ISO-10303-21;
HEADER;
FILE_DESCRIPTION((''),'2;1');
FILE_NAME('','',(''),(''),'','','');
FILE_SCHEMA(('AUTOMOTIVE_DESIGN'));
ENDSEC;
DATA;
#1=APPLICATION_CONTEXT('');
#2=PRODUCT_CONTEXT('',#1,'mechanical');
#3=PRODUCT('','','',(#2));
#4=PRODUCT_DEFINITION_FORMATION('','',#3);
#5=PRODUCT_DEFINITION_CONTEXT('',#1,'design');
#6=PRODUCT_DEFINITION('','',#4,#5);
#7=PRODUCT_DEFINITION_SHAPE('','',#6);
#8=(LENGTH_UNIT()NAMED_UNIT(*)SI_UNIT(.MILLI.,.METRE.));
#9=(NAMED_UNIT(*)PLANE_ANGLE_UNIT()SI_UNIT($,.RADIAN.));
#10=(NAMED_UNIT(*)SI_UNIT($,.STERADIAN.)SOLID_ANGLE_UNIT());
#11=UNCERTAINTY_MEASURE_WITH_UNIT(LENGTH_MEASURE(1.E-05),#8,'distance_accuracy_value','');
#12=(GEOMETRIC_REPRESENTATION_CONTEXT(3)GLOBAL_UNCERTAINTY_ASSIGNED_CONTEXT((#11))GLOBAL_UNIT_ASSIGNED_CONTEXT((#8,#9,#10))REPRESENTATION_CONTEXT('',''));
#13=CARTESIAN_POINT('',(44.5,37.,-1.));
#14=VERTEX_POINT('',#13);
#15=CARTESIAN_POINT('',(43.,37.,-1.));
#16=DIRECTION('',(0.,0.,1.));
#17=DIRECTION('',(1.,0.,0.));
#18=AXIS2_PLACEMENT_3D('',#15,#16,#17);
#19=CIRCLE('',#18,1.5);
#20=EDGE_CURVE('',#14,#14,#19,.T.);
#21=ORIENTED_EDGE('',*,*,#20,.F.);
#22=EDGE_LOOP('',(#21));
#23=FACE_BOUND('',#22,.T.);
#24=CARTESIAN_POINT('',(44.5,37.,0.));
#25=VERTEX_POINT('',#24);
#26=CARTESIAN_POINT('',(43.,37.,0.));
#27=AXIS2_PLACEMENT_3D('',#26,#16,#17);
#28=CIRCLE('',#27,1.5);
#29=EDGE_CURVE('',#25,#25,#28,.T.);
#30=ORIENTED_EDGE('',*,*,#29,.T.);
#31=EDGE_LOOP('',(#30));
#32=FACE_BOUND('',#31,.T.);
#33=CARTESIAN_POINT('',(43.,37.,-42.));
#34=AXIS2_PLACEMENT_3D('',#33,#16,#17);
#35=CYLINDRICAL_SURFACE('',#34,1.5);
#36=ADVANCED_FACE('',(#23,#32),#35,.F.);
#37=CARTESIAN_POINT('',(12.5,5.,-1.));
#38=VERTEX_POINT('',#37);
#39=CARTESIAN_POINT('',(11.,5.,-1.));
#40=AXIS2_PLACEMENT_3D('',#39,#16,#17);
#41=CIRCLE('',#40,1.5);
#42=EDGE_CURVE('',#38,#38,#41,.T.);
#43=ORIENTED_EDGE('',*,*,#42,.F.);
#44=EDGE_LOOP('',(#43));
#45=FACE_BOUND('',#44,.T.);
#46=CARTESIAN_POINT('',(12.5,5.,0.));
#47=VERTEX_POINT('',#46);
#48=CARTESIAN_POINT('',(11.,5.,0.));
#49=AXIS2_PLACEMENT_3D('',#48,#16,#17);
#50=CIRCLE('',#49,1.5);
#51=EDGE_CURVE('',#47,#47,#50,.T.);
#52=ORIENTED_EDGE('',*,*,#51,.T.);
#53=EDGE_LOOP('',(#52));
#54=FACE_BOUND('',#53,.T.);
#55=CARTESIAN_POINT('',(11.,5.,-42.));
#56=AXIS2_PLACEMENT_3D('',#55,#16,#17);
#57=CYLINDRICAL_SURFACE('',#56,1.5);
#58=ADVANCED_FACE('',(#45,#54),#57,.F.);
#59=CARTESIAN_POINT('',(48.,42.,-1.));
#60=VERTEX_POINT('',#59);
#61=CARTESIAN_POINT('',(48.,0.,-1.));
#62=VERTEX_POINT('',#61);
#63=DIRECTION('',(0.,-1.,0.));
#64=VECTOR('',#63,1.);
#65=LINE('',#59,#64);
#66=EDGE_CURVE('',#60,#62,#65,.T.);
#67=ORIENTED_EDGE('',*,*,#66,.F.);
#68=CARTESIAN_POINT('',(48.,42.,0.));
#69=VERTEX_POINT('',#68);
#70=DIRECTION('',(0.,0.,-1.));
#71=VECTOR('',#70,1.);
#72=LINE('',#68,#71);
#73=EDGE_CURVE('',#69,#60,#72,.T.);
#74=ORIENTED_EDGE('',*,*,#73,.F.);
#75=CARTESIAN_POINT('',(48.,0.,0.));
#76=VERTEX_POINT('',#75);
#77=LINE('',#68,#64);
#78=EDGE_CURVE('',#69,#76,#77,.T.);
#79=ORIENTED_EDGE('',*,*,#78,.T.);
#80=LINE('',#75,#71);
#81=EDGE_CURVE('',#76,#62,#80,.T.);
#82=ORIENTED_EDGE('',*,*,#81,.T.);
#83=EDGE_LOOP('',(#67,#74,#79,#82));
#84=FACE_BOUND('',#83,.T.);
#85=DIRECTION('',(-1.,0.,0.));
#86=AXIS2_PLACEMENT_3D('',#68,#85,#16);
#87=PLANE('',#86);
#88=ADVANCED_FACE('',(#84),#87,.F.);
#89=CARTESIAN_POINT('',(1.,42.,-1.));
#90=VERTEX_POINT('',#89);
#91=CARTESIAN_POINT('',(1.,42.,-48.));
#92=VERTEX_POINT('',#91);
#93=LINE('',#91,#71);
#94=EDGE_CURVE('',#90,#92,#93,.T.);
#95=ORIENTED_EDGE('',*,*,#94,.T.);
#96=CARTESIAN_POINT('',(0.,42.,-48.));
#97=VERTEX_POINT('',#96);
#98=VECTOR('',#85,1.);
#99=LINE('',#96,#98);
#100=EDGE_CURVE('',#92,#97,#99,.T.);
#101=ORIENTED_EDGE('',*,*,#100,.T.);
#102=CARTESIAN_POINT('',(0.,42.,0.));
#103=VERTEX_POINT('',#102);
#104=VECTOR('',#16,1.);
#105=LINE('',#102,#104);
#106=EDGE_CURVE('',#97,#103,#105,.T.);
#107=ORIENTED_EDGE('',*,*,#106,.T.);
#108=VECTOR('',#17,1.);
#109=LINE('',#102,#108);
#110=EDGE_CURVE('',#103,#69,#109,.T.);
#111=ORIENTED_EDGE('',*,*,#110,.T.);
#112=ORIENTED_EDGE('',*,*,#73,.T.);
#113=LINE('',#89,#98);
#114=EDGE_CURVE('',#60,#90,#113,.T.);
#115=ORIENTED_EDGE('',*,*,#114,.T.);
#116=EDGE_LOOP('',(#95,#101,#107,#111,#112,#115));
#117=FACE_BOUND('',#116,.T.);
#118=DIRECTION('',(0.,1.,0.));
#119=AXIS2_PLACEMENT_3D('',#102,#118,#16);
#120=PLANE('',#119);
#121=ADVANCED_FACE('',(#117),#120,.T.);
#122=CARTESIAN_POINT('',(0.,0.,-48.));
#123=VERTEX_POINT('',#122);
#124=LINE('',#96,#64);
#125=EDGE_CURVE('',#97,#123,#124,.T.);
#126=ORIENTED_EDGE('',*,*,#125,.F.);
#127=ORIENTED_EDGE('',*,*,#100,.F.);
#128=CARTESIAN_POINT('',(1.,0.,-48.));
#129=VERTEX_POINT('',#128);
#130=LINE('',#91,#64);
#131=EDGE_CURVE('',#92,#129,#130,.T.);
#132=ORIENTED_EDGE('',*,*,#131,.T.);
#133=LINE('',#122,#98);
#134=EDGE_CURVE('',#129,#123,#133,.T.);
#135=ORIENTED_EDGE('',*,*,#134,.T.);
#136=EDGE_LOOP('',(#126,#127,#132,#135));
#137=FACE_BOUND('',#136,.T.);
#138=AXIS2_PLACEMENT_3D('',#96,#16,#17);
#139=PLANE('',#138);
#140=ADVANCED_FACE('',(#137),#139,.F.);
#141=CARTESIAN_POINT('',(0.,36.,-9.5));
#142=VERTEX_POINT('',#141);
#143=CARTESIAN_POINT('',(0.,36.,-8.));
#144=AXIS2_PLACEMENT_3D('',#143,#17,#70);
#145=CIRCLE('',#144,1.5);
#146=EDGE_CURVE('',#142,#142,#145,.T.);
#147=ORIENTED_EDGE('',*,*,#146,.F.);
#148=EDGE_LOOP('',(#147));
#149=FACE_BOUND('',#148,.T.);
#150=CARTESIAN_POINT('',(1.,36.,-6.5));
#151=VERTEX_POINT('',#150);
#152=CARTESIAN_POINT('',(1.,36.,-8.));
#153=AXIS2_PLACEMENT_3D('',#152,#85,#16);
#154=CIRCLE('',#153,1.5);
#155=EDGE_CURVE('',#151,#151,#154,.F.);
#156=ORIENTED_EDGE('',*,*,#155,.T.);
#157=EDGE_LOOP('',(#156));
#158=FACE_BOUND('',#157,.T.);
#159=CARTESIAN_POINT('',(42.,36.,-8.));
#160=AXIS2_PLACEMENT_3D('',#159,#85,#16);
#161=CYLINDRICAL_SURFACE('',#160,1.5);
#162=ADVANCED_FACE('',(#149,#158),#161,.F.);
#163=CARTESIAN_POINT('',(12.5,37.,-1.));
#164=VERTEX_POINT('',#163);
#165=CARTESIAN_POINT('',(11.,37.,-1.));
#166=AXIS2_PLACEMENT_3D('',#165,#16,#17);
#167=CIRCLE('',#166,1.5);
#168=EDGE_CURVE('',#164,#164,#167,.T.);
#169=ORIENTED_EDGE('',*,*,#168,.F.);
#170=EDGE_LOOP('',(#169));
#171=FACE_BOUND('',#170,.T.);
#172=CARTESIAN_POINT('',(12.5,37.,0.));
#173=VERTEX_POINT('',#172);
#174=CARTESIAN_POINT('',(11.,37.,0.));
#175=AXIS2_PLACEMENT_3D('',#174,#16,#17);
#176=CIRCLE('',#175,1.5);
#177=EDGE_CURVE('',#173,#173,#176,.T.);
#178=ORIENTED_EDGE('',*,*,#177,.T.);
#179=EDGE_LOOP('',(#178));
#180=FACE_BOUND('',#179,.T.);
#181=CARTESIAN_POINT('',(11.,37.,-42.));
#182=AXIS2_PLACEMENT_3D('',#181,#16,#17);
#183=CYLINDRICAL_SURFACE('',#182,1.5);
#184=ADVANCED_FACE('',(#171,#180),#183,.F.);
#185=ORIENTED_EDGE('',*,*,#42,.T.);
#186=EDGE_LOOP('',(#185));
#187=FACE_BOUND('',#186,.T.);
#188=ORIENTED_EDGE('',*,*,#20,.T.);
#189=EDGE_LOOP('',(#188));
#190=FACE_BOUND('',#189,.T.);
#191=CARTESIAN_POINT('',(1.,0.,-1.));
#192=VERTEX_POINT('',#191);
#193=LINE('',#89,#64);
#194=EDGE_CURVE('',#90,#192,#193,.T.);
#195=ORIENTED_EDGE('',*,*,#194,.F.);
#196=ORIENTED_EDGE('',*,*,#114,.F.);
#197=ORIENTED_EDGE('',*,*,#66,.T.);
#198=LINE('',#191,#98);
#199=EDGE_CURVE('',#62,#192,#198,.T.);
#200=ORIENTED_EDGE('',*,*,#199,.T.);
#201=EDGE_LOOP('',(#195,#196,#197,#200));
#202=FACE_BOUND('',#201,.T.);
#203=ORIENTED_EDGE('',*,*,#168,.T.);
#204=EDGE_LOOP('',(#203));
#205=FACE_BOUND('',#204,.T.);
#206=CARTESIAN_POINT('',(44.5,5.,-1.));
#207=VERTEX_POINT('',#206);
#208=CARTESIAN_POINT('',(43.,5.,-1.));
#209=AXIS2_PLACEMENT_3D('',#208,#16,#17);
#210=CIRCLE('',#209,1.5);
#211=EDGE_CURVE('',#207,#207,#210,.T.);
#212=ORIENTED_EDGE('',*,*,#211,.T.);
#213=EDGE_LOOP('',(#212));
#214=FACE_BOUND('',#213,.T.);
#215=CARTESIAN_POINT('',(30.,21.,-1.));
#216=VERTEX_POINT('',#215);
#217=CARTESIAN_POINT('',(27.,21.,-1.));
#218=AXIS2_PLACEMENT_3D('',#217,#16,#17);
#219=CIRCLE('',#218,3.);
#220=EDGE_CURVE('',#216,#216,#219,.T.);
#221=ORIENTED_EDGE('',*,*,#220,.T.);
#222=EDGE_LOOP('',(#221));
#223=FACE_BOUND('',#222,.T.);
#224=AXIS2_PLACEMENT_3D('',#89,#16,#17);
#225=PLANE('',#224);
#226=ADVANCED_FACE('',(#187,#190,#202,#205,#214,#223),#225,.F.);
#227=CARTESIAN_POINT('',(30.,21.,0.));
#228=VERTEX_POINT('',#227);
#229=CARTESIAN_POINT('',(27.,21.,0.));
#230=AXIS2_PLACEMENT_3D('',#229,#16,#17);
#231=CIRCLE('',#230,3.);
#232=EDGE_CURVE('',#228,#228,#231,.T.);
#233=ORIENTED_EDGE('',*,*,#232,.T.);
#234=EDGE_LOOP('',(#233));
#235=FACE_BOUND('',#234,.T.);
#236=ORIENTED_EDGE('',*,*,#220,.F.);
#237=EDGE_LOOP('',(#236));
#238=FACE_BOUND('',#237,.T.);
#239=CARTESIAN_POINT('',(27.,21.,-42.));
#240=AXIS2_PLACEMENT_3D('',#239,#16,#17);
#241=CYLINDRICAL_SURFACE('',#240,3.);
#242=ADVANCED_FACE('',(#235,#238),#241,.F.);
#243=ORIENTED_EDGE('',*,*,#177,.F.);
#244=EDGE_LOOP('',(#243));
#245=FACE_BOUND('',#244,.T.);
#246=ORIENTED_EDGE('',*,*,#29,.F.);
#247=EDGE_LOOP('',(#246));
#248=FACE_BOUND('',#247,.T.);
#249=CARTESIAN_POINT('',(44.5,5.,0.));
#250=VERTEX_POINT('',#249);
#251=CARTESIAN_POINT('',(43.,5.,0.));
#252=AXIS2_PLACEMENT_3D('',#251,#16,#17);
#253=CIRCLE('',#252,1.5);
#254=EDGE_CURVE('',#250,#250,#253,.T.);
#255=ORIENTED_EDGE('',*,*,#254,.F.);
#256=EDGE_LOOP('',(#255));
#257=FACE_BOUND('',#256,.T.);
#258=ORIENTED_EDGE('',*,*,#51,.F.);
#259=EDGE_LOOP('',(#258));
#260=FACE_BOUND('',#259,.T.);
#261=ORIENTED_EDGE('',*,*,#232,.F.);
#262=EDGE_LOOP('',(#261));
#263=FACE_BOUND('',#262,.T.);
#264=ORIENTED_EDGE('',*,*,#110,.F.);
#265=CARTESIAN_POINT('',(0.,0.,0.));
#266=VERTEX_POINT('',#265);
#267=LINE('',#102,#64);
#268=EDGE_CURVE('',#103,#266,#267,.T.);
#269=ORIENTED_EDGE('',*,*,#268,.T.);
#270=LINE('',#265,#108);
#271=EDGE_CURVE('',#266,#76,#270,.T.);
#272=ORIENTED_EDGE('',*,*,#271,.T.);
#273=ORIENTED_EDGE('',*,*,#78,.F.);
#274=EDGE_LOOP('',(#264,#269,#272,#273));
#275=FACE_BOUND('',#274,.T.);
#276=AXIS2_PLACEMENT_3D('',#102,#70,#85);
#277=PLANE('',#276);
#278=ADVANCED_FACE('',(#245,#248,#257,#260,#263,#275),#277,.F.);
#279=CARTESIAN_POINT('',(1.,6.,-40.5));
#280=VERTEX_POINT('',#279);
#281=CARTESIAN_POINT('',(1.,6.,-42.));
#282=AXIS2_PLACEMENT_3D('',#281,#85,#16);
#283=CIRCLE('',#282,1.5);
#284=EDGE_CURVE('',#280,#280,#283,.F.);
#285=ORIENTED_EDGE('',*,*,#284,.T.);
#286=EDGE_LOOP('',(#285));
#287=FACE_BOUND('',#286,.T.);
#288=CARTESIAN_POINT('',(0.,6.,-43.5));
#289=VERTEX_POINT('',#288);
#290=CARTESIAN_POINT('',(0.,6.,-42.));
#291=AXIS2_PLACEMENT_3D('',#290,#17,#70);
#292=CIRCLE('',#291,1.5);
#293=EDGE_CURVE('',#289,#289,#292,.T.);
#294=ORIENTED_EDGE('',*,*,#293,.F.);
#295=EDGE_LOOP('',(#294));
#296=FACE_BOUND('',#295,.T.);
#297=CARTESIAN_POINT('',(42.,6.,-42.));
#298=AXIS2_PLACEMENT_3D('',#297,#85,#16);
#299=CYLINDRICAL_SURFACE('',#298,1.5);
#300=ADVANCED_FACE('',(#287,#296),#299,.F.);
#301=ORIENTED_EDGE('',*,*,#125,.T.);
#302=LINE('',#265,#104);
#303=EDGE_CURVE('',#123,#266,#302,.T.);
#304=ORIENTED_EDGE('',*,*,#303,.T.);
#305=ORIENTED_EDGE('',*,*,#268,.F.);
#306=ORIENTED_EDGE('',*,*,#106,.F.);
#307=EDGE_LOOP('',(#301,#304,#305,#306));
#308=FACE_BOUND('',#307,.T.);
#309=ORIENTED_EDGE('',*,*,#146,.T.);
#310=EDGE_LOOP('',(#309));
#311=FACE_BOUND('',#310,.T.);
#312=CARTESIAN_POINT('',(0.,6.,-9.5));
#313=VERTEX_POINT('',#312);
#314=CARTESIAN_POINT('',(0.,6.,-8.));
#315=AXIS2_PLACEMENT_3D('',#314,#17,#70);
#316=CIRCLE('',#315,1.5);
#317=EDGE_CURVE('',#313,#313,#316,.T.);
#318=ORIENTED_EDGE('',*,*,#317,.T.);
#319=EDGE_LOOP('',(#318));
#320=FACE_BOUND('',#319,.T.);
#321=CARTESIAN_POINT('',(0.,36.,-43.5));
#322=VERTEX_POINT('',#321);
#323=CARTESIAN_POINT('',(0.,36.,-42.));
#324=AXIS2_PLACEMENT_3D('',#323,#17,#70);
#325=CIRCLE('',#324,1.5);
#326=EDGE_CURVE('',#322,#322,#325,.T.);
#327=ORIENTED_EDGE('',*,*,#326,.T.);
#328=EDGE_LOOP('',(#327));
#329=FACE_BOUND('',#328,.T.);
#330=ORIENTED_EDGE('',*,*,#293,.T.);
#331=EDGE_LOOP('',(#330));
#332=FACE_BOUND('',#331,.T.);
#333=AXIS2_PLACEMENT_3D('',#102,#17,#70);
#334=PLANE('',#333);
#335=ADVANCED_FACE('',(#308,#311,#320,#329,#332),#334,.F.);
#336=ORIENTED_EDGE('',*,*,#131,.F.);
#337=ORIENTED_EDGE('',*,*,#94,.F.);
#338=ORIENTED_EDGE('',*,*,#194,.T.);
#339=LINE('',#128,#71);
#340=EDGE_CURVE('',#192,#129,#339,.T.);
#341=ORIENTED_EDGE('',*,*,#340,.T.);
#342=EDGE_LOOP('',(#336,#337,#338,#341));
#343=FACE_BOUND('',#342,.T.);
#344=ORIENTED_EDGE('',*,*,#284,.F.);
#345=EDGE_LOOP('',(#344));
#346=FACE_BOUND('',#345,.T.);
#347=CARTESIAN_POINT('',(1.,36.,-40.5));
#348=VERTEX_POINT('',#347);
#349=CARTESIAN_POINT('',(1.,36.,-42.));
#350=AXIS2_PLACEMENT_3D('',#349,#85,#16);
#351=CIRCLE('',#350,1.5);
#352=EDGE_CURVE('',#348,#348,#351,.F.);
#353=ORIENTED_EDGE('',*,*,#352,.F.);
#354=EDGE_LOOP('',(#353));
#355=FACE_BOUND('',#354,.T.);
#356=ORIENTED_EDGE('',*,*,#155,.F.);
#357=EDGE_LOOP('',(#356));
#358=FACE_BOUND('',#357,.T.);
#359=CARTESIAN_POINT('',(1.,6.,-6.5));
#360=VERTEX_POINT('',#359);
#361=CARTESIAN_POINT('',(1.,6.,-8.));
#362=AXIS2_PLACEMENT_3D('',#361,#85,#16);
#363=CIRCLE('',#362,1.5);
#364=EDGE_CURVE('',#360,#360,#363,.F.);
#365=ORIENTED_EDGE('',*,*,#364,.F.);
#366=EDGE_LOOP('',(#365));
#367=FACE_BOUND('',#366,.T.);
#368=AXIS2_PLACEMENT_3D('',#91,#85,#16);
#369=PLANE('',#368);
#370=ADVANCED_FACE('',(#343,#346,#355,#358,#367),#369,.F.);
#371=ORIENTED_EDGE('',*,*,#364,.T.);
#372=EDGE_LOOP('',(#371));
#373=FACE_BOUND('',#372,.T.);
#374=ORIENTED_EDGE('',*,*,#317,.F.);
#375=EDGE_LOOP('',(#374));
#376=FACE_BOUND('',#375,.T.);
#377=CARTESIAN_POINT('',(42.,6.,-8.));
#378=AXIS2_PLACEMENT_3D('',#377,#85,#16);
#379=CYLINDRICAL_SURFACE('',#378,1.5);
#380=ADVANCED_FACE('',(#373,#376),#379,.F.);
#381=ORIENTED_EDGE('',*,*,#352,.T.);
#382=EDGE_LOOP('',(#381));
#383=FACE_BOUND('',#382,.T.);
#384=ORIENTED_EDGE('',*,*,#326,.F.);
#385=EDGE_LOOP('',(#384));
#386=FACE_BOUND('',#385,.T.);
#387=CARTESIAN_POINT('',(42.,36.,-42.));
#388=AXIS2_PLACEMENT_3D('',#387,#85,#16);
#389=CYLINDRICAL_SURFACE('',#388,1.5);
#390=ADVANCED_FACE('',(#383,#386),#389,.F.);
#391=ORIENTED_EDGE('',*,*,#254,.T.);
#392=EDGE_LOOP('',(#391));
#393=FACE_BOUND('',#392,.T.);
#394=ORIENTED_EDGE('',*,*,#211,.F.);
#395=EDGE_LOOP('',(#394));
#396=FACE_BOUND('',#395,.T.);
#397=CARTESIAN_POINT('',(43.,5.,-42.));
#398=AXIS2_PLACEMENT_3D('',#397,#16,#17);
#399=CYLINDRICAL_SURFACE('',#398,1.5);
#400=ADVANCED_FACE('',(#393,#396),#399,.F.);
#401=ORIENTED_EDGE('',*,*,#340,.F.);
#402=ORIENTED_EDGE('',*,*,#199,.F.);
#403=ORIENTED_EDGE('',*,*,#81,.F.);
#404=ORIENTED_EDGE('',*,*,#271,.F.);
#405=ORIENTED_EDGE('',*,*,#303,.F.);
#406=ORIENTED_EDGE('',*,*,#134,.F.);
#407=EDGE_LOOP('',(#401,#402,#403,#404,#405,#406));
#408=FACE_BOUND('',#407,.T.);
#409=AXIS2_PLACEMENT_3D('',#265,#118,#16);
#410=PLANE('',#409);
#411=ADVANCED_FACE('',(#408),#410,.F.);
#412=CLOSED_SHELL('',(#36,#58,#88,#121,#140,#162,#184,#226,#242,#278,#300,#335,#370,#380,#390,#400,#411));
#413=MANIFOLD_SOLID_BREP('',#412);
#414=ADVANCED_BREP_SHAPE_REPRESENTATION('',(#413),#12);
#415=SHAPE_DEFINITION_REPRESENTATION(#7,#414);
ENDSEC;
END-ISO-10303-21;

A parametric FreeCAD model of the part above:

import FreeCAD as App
import Part
import Sketcher
from FreeCAD import Vector
Q = App.Units.Quantity


def add_polygon(sketch, points):
    """Adds a closed chain of lines whose ends are joined by coincident constraints."""
    first, n = sketch.GeometryCount, len(points)
    for a, b in zip(points, points[1:] + points[:1]):
        sketch.addGeometry(Part.LineSegment(App.Vector(*a, 0), App.Vector(*b, 0)), False)
    for i in range(n):
        sketch.addConstraint(Sketcher.Constraint("Coincident", first + i, 2, first + (i + 1) % n, 1))

doc = App.newDocument("Part")
body = doc.addObject("PartDesign::Body", "Body")

# Sketch on XZ plane
sketch1 = doc.addObject("Sketcher::SketchObject", "Sketch")
body.addObject(sketch1)
sketch1.AttachmentSupport = (doc.XZ_Plane, [""])
sketch1.MapMode = "FlatFace"
add_polygon(sketch1, [(0, -48), (0, 0), (48, 0), (48, -1), (1, -1), (1, -48)])  # lines 0-5
sketch1.addConstraint([
    Sketcher.Constraint("Vertical", 0),
    Sketcher.Constraint("Horizontal", 1),
    Sketcher.Constraint("Vertical", 2),
    Sketcher.Constraint("Horizontal", 3),
    Sketcher.Constraint("Vertical", 4),
    Sketcher.Constraint("Horizontal", 5),
    Sketcher.Constraint("Coincident", 0, 2, -1, 1),
    Sketcher.Constraint("Equal", 1, 0),
    Sketcher.Constraint("Equal", 5, 2),
    Sketcher.Constraint("DistanceX", 1, 1, 1, 2, Q("48 mm")),
    Sketcher.Constraint("DistanceX", 3, 2, 3, 1, Q("47 mm")),
])
pad1 = doc.addObject("PartDesign::Pad", "Pad")
body.addObject(pad1)
pad1.Profile = sketch1
pad1.Length = 42
pad1.Reversed = True

# Sketch on XY plane
sketch2 = doc.addObject("Sketcher::SketchObject", "Sketch001")
body.addObject(sketch2)
sketch2.AttachmentSupport = (doc.XY_Plane, [""])
sketch2.MapMode = "FlatFace"
sketch2.addGeometry([
    Part.Circle(Vector(11, 37, 0), Vector(0, 0, 1), 1.5),  # 0
    Part.Circle(Vector(43, 37, 0), Vector(0, 0, 1), 1.5),  # 1
    Part.Circle(Vector(43, 5, 0), Vector(0, 0, 1), 1.5),  # 2
    Part.Circle(Vector(11, 5, 0), Vector(0, 0, 1), 1.5),  # 3
    Part.Circle(Vector(27, 21, 0), Vector(0, 0, 1), 3),  # 4
], False)
sketch2.addConstraint([
    Sketcher.Constraint("Equal", 0, 1),
    Sketcher.Constraint("Equal", 1, 2),
    Sketcher.Constraint("Equal", 2, 3),
    Sketcher.Constraint("Horizontal", 0, 3, 1, 3),
    Sketcher.Constraint("Horizontal", 2, 3, 3, 3),
    Sketcher.Constraint("Vertical", 1, 3, 2, 3),
    Sketcher.Constraint("Vertical", 0, 3, 3, 3),
    Sketcher.Constraint("Diameter", 0, Q("3 mm")),
    Sketcher.Constraint("Diameter", 4, Q("6 mm")),
    Sketcher.Constraint("DistanceX", -1, 1, 0, 3, Q("11 mm")),
    Sketcher.Constraint("DistanceY", -1, 1, 0, 3, Q("37 mm")),
    Sketcher.Constraint("DistanceX", -1, 1, 1, 3, Q("43 mm")),
    Sketcher.Constraint("DistanceY", -1, 1, 2, 3, Q("5 mm")),
    Sketcher.Constraint("DistanceX", -1, 1, 4, 3, Q("27 mm")),
    Sketcher.Constraint("DistanceY", -1, 1, 4, 3, Q("21 mm")),
])
pocket1 = doc.addObject("PartDesign::Pocket", "Pocket")
body.addObject(pocket1)
pocket1.Profile = sketch2
pocket1.Length = 42

# Sketch on YZ plane
sketch3 = doc.addObject("Sketcher::SketchObject", "Sketch002")
body.addObject(sketch3)
sketch3.AttachmentSupport = (doc.YZ_Plane, [""])
sketch3.MapMode = "FlatFace"
sketch3.addGeometry([
    Part.Circle(Vector(36, -42, 0), Vector(0, 0, 1), 1.5),
    Part.Circle(Vector(6, -42, 0), Vector(0, 0, 1), 1.5),
    Part.Circle(Vector(6, -8, 0), Vector(0, 0, 1), 1.5),
    Part.Circle(Vector(36, -8, 0), Vector(0, 0, 1), 1.5),
], False)
sketch3.addConstraint([
    Sketcher.Constraint("Equal", 0, 1),
    Sketcher.Constraint("Equal", 1, 2),
    Sketcher.Constraint("Equal", 2, 3),
    Sketcher.Constraint("Horizontal", 0, 3, 1, 3),
    Sketcher.Constraint("Horizontal", 2, 3, 3, 3),
    Sketcher.Constraint("Vertical", 1, 3, 2, 3),
    Sketcher.Constraint("Vertical", 0, 3, 3, 3),
    Sketcher.Constraint("Diameter", 0, Q("3 mm")),
    Sketcher.Constraint("DistanceX", -1, 1, 0, 3, Q("36 mm")),
    Sketcher.Constraint("DistanceY", 0, 3, -1, 1, Q("42 mm")),
    Sketcher.Constraint("DistanceX", -1, 1, 1, 3, Q("6 mm")),
    Sketcher.Constraint("DistanceY", 2, 3, -1, 1, Q("8 mm")),
])
pocket2 = doc.addObject("PartDesign::Pocket", "Pocket001")
body.addObject(pocket2)
pocket2.Profile = sketch3
pocket2.Length = 42
pocket2.Reversed = True

doc.recompute()
